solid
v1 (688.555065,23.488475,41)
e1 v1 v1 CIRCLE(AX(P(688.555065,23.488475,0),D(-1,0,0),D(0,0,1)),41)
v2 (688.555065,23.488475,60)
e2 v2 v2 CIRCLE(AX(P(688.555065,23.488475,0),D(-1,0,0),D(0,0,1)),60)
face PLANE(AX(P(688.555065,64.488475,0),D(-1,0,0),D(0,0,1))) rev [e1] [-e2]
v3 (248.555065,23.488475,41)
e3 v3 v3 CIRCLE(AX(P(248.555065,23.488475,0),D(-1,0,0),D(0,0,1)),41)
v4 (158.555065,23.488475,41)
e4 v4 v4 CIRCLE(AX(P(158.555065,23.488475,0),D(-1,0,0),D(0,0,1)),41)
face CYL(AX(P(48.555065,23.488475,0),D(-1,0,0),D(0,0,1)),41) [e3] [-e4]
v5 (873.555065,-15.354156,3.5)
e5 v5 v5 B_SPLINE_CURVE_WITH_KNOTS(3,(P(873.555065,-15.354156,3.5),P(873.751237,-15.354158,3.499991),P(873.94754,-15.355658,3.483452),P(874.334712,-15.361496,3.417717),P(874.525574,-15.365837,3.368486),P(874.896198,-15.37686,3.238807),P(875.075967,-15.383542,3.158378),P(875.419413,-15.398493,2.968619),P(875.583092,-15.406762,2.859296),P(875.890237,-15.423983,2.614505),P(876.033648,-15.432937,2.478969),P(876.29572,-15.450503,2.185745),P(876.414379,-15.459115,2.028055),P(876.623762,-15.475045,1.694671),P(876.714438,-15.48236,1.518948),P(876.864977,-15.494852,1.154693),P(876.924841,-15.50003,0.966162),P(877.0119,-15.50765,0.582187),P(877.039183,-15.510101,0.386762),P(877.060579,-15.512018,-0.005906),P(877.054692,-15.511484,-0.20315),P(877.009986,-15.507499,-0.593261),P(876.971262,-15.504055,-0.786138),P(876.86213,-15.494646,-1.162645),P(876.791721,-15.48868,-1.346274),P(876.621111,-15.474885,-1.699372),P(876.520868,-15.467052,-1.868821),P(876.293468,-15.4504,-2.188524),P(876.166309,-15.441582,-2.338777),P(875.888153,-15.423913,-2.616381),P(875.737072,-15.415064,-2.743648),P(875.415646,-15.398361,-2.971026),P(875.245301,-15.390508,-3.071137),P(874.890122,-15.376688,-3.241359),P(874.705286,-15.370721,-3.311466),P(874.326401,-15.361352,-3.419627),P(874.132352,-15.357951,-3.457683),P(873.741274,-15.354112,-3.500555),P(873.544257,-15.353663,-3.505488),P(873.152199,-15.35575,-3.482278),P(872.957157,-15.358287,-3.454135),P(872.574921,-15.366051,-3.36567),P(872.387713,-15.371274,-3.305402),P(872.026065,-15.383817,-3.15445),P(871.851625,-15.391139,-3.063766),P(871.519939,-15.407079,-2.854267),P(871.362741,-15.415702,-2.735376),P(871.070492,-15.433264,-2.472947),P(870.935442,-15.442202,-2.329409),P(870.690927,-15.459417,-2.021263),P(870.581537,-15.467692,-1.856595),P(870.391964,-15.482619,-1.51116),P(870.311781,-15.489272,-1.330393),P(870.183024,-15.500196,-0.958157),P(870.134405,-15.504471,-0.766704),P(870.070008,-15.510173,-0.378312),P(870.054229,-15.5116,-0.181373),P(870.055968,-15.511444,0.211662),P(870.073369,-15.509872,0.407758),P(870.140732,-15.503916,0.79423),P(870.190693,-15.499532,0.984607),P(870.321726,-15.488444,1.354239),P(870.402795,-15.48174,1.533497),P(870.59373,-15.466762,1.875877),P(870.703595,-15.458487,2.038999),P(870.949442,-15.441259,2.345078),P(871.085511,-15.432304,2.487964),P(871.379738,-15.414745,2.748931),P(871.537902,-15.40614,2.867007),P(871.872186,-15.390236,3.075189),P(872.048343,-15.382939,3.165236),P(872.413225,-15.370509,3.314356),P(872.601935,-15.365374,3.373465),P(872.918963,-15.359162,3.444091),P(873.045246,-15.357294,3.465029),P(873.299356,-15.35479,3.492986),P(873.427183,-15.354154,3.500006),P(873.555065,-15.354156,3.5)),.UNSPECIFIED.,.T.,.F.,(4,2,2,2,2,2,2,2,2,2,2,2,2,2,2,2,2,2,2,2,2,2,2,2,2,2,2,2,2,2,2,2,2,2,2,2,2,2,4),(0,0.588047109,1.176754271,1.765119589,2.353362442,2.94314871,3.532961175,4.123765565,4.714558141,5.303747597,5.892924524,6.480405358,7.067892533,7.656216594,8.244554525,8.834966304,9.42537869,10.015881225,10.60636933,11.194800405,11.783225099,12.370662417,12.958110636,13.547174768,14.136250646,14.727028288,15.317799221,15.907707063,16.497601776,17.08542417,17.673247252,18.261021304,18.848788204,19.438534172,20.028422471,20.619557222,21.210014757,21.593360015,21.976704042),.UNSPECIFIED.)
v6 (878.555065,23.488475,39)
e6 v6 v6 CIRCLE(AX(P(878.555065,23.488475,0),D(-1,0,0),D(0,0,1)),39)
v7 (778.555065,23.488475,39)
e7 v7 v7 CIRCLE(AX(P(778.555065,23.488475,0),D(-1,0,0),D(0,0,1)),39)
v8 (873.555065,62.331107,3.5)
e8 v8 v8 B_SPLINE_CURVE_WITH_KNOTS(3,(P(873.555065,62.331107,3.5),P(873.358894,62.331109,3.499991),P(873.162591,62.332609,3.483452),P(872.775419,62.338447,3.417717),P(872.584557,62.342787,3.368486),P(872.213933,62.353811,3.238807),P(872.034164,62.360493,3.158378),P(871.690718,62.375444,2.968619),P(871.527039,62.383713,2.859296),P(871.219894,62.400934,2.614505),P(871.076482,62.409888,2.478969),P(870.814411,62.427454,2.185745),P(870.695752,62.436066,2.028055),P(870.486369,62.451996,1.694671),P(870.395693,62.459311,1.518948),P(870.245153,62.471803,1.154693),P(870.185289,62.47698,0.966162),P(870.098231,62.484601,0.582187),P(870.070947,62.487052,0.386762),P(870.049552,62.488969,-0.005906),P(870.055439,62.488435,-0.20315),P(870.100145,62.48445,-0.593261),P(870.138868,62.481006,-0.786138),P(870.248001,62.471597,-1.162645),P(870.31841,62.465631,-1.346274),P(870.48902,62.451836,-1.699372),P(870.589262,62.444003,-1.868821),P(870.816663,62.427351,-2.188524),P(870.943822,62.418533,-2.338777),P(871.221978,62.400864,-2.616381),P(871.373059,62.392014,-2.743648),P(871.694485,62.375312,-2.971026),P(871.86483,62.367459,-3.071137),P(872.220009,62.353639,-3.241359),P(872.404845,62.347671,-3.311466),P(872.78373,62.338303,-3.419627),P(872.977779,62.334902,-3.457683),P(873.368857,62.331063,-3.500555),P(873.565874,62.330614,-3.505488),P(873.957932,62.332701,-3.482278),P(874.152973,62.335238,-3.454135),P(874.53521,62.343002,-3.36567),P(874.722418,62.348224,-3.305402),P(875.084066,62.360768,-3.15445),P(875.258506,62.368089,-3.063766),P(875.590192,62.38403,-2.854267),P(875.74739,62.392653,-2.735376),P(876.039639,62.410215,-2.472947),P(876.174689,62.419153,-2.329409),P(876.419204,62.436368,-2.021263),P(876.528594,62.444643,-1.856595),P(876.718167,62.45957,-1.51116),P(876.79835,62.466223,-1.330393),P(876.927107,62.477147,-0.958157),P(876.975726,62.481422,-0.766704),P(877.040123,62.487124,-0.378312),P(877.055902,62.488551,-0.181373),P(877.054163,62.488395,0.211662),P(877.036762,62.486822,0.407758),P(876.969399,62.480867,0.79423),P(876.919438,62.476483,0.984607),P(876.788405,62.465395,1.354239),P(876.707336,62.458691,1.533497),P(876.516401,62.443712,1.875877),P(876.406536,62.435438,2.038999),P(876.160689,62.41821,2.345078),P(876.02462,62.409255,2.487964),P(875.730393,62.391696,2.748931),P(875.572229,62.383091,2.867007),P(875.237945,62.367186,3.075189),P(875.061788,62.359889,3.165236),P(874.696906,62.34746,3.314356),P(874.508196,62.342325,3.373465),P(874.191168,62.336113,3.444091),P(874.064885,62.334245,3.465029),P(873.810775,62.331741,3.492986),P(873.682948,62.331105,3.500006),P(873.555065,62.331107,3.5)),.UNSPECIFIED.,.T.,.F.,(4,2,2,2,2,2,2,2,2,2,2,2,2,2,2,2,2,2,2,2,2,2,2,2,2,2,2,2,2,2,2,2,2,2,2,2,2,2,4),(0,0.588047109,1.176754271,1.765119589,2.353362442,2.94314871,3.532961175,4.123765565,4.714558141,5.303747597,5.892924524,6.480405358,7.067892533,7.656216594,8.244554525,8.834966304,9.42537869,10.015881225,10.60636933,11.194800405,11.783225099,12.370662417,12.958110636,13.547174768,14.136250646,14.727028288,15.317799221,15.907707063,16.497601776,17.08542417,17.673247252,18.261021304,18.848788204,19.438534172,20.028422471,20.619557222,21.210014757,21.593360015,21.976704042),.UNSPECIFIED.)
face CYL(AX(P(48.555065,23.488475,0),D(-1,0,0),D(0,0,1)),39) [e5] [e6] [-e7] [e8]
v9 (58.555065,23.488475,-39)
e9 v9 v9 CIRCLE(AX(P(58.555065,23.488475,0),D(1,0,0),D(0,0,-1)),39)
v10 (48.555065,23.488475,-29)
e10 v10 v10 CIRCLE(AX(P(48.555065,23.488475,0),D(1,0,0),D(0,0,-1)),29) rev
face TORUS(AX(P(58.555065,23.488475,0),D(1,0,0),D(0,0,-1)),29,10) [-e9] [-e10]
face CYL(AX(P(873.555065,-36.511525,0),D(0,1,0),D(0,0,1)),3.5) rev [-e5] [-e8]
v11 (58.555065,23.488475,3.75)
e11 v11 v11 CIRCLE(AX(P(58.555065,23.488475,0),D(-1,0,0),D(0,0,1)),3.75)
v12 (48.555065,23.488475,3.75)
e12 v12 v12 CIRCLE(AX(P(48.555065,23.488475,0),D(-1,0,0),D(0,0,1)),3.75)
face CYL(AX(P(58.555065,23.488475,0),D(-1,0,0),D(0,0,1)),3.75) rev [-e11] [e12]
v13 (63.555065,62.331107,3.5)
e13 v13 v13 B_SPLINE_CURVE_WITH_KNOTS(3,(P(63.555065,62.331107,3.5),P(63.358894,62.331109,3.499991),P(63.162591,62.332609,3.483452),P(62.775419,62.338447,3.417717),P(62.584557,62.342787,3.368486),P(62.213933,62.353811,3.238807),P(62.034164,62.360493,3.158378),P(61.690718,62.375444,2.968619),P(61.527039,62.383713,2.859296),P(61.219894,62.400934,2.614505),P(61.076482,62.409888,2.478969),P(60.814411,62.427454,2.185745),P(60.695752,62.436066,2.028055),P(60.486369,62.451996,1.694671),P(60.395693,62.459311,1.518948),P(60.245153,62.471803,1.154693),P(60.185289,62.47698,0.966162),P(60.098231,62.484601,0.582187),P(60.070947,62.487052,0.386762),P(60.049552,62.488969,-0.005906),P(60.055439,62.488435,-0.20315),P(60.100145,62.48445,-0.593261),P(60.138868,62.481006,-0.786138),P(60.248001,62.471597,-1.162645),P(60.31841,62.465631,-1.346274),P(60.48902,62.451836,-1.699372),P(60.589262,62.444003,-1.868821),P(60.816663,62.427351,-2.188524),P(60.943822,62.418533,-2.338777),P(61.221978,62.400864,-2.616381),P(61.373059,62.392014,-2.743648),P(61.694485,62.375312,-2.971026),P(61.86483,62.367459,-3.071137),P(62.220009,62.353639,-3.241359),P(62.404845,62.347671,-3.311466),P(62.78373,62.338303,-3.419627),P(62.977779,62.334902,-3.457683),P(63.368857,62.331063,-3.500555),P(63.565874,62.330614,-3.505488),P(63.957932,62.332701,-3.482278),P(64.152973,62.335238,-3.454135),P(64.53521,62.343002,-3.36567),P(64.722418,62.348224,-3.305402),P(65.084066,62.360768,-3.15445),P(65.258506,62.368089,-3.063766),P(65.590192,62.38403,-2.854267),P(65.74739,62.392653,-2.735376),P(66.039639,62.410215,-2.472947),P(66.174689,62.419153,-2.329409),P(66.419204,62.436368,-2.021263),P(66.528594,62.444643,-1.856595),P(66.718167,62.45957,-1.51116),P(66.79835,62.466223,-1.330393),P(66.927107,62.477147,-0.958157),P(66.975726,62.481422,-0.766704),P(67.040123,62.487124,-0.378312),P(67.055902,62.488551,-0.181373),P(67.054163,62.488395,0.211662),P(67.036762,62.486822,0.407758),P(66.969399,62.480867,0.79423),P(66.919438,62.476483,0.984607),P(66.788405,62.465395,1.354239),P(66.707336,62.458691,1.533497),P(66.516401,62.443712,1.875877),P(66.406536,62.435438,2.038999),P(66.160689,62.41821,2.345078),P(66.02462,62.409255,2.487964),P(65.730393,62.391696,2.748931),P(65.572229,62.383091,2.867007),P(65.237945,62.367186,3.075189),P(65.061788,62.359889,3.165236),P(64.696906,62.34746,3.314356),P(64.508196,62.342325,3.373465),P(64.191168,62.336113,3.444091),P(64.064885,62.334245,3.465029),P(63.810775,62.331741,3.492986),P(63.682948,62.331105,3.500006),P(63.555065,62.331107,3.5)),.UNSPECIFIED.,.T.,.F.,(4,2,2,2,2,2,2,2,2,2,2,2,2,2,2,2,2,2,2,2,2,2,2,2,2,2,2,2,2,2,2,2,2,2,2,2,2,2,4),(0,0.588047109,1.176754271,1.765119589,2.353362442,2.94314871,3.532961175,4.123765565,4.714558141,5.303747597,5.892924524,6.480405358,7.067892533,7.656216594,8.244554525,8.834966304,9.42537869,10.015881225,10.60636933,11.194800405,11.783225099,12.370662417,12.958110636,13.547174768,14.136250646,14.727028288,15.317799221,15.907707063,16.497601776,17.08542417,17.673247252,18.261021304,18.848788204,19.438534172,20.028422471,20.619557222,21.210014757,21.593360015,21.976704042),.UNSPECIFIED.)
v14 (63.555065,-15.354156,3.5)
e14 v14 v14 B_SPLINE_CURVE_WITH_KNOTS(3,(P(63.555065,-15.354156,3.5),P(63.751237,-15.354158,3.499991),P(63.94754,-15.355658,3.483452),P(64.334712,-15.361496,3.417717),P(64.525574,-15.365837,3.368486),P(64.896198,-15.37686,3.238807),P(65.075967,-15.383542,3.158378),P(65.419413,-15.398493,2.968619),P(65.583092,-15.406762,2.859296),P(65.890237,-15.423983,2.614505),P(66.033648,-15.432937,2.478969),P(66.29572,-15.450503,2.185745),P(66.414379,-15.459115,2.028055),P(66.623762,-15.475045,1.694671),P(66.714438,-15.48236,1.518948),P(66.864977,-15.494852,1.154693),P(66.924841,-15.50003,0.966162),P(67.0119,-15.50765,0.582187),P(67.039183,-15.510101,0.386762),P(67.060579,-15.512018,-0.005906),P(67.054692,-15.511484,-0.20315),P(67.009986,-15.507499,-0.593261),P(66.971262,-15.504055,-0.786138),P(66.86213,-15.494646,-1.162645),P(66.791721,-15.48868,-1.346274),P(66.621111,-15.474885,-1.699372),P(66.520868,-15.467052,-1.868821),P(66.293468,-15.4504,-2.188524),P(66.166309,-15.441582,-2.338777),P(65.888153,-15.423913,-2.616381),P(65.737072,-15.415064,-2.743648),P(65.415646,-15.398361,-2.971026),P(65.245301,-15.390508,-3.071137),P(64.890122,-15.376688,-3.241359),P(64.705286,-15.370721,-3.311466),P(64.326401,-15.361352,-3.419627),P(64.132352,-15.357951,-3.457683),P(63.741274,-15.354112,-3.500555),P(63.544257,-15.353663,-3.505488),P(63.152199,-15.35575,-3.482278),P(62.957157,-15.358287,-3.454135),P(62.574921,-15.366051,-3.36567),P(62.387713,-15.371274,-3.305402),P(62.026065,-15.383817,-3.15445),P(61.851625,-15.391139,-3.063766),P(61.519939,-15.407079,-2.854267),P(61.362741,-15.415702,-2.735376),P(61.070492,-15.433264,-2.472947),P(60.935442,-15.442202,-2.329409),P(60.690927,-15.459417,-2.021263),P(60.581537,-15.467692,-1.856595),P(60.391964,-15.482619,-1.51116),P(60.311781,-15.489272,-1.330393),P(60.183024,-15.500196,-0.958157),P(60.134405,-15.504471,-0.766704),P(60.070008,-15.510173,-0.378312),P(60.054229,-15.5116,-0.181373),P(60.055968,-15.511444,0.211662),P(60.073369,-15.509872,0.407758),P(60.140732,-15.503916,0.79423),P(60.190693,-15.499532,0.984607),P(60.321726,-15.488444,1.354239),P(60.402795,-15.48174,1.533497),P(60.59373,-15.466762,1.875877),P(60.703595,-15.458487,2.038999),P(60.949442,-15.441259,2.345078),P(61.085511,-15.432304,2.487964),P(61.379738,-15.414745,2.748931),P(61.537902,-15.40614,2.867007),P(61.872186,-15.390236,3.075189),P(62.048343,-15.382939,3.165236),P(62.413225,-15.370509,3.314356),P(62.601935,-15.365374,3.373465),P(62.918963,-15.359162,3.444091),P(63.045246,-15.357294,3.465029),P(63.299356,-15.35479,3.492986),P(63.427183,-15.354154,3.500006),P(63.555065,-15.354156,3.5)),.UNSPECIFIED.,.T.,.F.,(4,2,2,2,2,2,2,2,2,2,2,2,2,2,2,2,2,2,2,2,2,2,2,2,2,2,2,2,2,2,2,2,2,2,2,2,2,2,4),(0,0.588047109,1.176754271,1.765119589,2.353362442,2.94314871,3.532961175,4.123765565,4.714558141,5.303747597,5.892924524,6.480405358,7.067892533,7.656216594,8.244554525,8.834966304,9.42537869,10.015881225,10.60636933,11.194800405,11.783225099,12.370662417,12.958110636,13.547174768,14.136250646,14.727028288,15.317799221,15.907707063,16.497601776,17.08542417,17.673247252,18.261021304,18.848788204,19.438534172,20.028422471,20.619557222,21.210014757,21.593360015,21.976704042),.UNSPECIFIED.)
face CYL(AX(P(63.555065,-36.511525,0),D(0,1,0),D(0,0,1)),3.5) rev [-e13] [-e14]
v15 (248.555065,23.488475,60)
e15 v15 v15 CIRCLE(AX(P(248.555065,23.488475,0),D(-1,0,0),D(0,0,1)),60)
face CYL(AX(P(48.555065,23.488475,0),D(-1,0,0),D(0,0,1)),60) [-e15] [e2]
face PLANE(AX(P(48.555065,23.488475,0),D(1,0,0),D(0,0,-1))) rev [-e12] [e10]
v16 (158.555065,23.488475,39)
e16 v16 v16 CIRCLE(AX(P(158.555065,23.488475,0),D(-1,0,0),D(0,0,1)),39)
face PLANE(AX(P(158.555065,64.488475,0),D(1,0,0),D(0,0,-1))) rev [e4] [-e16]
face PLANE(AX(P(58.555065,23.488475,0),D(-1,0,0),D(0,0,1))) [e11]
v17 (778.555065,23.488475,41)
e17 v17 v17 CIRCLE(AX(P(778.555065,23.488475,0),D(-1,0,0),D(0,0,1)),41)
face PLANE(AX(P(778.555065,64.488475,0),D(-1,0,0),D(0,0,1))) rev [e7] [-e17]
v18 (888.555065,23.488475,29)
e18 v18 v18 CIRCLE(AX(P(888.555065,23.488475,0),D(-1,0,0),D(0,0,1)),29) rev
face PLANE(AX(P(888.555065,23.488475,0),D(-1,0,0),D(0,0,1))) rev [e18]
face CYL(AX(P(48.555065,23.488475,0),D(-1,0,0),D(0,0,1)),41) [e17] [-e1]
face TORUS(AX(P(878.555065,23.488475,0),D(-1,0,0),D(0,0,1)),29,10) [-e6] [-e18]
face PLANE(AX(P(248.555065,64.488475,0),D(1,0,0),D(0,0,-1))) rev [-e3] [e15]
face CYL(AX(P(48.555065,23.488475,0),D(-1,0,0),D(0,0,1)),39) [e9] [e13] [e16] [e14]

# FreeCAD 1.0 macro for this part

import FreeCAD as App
import Part
import Sketcher

V = App.Vector


def edges_at(feature, points):
    """Names of the edges that pass closest to the given points."""
    edges = feature.Shape.Edges
    near = lambda p: min(range(len(edges)), key=lambda i: edges[i].distToShape(Part.Vertex(*p))[0])
    return sorted({f"Edge{near(p) + 1}" for p in points})


def add_polygon(sketch, points):
    """Adds a closed chain of lines whose ends are joined by coincident constraints."""
    first, n = sketch.GeometryCount, len(points)
    for a, b in zip(points, points[1:] + points[:1]):
        sketch.addGeometry(Part.LineSegment(App.Vector(*a, 0), App.Vector(*b, 0)), False)
    for i in range(n):
        sketch.addConstraint(Sketcher.Constraint("Coincident", first + i, 2, first + (i + 1) % n, 1))

doc = App.newDocument("Part")
body = doc.addObject("PartDesign::Body", "Body")

# Sketch on XY plane
sketch1 = body.newObject("Sketcher::SketchObject", "Sketch")
sketch1.AttachmentSupport = (doc.getObject("XY_Plane"), [""])
sketch1.MapMode = "FlatFace"
add_polygon(sketch1, [(158.6, 64.5), (158.6, 62.5), (48.6, 62.5), (48.6, 23.5), (888.6, 23.5), (888.6, 62.5), (778.6, 62.5), (778.6, 64.5), (688.6, 64.5), (688.6, 83.5), (248.6, 83.5), (248.6, 64.5)])  # lines 0-11
sketch1.addGeometry(Part.LineSegment(V(48.6, 23.5, 0), V(888.6, 23.5, 0)), True)  # axis
sketch1.addConstraint([
    Sketcher.Constraint("Vertical", 0),
    Sketcher.Constraint("Horizontal", 1),
    Sketcher.Constraint("Vertical", 2),
    Sketcher.Constraint("Horizontal", 3),
    Sketcher.Constraint("Vertical", 4),
    Sketcher.Constraint("Horizontal", 5),
    Sketcher.Constraint("Vertical", 6),
    Sketcher.Constraint("Horizontal", 7),
    Sketcher.Constraint("Vertical", 8),
    Sketcher.Constraint("Horizontal", 9),
    Sketcher.Constraint("Vertical", 10),
    Sketcher.Constraint("Horizontal", 11),
    Sketcher.Constraint("Horizontal", 12),
    Sketcher.Constraint("Coincident", 12, 1, 2, 2),
    Sketcher.Constraint("Horizontal", 1, 2, 4, 2),
    Sketcher.Constraint("Horizontal", 7, 2, 10, 2),
    Sketcher.Constraint("Vertical", 4, 2, 12, 2),
    Sketcher.Constraint("Equal", 1, 5),
    Sketcher.Constraint("Equal", 7, 11),
    Sketcher.Constraint("DistanceX", 1, 2, 1, 1, 110.0),
    Sketcher.Constraint("DistanceX", 3, 1, 3, 2, 840.0),
    Sketcher.Constraint("DistanceX", 7, 2, 7, 1, 90.0),
    Sketcher.Constraint("DistanceY", 0, 2, 0, 1, 2.0),
    Sketcher.Constraint("DistanceY", 2, 2, 2, 1, 39.0),
    Sketcher.Constraint("DistanceY", 8, 1, 8, 2, 19.0),
    Sketcher.Constraint("DistanceX", -1, 1, 0, 2, 158.555065),
    Sketcher.Constraint("DistanceY", -1, 1, 0, 2, 62.488475),
])
revolution = body.newObject("PartDesign::Revolution", "Revolution")
revolution.Profile = sketch1
revolution.ReferenceAxis = (sketch1, ["Axis0"])
revolution.Angle = 360
doc.recompute()

fillet = body.newObject("PartDesign::Fillet", "Fillet")
fillet.Base = (revolution, edges_at(revolution, [(48.555, -15.512, 0)]))
fillet.Radius = 10

# Sketch on YZ plane
sketch2 = body.newObject("Sketcher::SketchObject", "Sketch001")
sketch2.AttachmentSupport = (doc.getObject("YZ_Plane"), [""])
sketch2.MapMode = "FlatFace"
sketch2.AttachmentOffset = App.Placement(V(0, 0, 48.555065), App.Rotation())
sketch2.addGeometry(Part.Circle(V(23.5, 0, 0), V(0, 0, 1), 3.8), False)
sketch2.addConstraint([
    Sketcher.Constraint("PointOnObject", 0, 3, -1),
    Sketcher.Constraint("Diameter", 0, 7.5),
    Sketcher.Constraint("DistanceX", -1, 1, 0, 3, 23.488475),
])
pocket1 = body.newObject("PartDesign::Pocket", "Pocket")
pocket1.Profile = sketch2
pocket1.Length = 10
pocket1.Reversed = True
doc.recompute()

fillet2 = body.newObject("PartDesign::Fillet", "Fillet001")
fillet2.Base = (pocket1, edges_at(pocket1, [(888.555, -15.512, 0)]))
fillet2.Radius = 10

# Sketch on XZ plane
sketch3 = body.newObject("Sketcher::SketchObject", "Sketch002")
sketch3.AttachmentSupport = (doc.getObject("XZ_Plane"), [""])
sketch3.MapMode = "FlatFace"
sketch3.AttachmentOffset = App.Placement(V(0, 0, -63), App.Rotation())
sketch3.addGeometry([
    Part.Circle(V(63.6, 0, 0), V(0, 0, 1), 3.5),
    Part.Circle(V(873.6, 0, 0), V(0, 0, 1), 3.5),
], False)
sketch3.addConstraint([
    Sketcher.Constraint("Equal", 0, 1),
    Sketcher.Constraint("PointOnObject", 0, 3, -1),
    Sketcher.Constraint("PointOnObject", 1, 3, -1),
    Sketcher.Constraint("Diameter", 0, 7.0),
    Sketcher.Constraint("DistanceX", 0, 3, 1, 3, 810.0),
    Sketcher.Constraint("DistanceX", -1, 1, 0, 3, 63.555065),
])
pocket2 = body.newObject("PartDesign::Pocket", "Pocket001")
pocket2.Profile = sketch3
pocket2.Type = "ThroughAll"
pocket2.Reversed = True

doc.recompute()
